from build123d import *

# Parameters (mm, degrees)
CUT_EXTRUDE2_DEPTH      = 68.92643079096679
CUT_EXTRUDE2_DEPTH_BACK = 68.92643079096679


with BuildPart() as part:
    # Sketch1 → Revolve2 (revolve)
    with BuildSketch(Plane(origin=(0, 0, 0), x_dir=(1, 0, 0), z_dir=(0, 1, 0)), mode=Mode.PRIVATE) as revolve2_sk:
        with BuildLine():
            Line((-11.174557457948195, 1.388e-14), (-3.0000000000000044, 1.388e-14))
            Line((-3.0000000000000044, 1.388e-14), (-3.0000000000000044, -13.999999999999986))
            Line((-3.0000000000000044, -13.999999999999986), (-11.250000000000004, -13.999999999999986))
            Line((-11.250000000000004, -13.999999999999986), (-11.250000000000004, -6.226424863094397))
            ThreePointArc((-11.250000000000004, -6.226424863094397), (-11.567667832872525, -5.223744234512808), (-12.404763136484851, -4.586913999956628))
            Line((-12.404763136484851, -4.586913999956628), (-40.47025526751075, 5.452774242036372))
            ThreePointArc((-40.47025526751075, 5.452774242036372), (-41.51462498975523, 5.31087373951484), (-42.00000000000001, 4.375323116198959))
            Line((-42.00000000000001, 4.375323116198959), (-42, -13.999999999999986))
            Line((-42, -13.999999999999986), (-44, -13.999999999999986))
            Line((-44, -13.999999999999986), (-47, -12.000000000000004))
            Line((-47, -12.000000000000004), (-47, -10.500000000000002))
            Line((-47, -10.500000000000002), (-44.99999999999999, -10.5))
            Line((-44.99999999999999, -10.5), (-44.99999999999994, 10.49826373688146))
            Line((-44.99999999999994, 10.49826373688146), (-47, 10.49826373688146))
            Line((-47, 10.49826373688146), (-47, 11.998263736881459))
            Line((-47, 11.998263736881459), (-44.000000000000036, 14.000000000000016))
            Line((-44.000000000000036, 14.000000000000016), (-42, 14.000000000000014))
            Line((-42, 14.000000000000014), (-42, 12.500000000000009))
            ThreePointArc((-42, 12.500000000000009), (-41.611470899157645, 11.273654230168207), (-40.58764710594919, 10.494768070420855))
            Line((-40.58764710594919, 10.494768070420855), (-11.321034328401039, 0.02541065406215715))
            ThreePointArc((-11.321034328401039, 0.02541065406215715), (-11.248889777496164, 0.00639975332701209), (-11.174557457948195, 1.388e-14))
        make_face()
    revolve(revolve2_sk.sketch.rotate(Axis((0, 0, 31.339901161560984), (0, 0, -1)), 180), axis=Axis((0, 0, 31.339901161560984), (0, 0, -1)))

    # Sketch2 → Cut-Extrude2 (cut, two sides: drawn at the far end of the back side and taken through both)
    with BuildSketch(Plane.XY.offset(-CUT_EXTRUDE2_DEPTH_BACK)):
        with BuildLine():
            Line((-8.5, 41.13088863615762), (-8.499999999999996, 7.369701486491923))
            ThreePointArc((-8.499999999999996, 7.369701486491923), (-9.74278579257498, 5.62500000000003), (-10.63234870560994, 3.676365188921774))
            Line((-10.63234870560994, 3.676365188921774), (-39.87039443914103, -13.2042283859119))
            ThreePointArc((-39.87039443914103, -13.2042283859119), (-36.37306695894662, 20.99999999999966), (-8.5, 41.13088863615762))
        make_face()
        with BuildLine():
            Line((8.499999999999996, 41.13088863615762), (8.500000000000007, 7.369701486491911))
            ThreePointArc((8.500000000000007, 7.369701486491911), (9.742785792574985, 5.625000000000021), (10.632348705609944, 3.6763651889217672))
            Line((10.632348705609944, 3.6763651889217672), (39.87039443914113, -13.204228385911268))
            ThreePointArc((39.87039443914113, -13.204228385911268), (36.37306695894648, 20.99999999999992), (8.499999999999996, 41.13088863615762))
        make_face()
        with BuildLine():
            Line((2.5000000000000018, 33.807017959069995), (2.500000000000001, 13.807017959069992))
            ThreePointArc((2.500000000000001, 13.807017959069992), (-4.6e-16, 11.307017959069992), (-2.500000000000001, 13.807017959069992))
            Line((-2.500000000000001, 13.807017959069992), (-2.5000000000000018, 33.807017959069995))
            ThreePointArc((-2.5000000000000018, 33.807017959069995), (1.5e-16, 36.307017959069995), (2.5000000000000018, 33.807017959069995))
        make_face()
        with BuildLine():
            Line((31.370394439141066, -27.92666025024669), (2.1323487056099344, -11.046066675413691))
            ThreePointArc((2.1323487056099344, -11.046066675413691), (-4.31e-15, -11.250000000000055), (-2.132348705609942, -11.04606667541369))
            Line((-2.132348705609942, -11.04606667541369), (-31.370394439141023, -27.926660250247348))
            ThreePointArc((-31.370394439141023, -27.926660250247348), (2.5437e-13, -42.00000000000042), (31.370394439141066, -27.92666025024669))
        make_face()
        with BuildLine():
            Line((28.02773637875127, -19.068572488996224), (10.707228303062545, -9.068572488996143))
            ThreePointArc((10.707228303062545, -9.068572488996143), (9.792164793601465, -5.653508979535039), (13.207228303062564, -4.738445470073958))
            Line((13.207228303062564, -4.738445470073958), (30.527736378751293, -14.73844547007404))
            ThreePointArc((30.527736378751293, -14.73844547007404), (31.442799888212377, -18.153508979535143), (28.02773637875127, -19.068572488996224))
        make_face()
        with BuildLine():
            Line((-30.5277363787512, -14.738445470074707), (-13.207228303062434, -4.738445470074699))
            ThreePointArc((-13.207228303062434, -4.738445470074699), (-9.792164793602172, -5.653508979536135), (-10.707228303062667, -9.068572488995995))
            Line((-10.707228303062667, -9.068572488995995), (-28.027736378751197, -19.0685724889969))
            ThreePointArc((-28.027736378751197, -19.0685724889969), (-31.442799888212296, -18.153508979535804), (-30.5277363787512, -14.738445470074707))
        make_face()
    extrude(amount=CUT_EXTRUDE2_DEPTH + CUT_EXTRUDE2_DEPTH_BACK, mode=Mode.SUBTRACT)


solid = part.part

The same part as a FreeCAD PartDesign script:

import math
import FreeCAD as App
import Part
import Sketcher

V = App.Vector
Q = App.Units.Quantity

doc = App.newDocument("Part")
body = doc.addObject("PartDesign::Body", "Body")

sketch1 = doc.addObject("Sketcher::SketchObject", "Sketch")
body.addObject(sketch1)
sketch1.AttachmentSupport = (doc.XZ_Plane, [""])
sketch1.MapMode = "FlatFace"
sketch1.addGeometry([
    Part.LineSegment(V(-3, 0, 0), V(-11.174557, 0, 0)),
    Part.ArcOfCircle(Part.Circle(V(-11.174557, -0.43488, 0), V(0, 0, 1), 0.43488), math.radians(90), math.radians(109.683328)),
    Part.LineSegment(V(-11.321034, -0.025411, 0), V(-40.587647, -10.494768, 0)),
    Part.ArcOfCircle(Part.Circle(V(-39.870328, -12.5, 0), V(0, 0, 1), 2.129672), math.radians(109.683328), math.radians(180)),
    Part.LineSegment(V(-42, -12.5, 0), V(-42, -14, 0)),
    Part.LineSegment(V(-42, -14, 0), V(-44, -14, 0)),
    Part.LineSegment(V(-44, -14, 0), V(-47, -11.998264, 0)),
    Part.LineSegment(V(-47, -11.998264, 0), V(-47, -10.498264, 0)),
    Part.LineSegment(V(-47, -10.498264, 0), V(-45, -10.498264, 0)),
    Part.LineSegment(V(-45, -10.498264, 0), V(-45, 10.5, 0)),
    Part.LineSegment(V(-45, 10.5, 0), V(-47, 10.5, 0)),
    Part.LineSegment(V(-47, 10.5, 0), V(-47, 12, 0)),
    Part.LineSegment(V(-47, 12, 0), V(-44, 14, 0)),
    Part.LineSegment(V(-44, 14, 0), V(-42, 14, 0)),
    Part.LineSegment(V(-42, 14, 0), V(-42, -4.375323, 0)),
    Part.ArcOfCircle(Part.Circle(V(-40.855685, -4.375323, 0), V(0, 0, 1), 1.144315), math.radians(180), math.radians(289.683328)),
    Part.LineSegment(V(-40.470255, -5.452774, 0), V(-12.404763, 4.586914, 0)),
    Part.ArcOfCircle(Part.Circle(V(-12.991255, 6.226425, 0), V(0, 0, 1), 1.741255), math.radians(-70.316672), math.radians(0)),
    Part.LineSegment(V(-11.25, 6.226425, 0), V(-11.25, 14, 0)),
    Part.LineSegment(V(-11.25, 14, 0), V(-3, 14, 0)),
    Part.LineSegment(V(-3, 14, 0), V(-3, 0, 0)),
], False)
sketch1.addConstraint([
    Sketcher.Constraint("Tangent", 0, 2, 1, 1),
    Sketcher.Constraint("Tangent", 1, 2, 2, 1),
    Sketcher.Constraint("Tangent", 2, 2, 3, 1),
    Sketcher.Constraint("Tangent", 3, 2, 4, 1),
    Sketcher.Constraint("Coincident", 4, 2, 5, 1),
    Sketcher.Constraint("Coincident", 5, 2, 6, 1),
    Sketcher.Constraint("Coincident", 6, 2, 7, 1),
    Sketcher.Constraint("Coincident", 7, 2, 8, 1),
    Sketcher.Constraint("Coincident", 8, 2, 9, 1),
    Sketcher.Constraint("Coincident", 9, 2, 10, 1),
    Sketcher.Constraint("Coincident", 10, 2, 11, 1),
    Sketcher.Constraint("Coincident", 11, 2, 12, 1),
    Sketcher.Constraint("Coincident", 12, 2, 13, 1),
    Sketcher.Constraint("Coincident", 13, 2, 14, 1),
    Sketcher.Constraint("Tangent", 14, 2, 15, 1),
    Sketcher.Constraint("Tangent", 15, 2, 16, 1),
    Sketcher.Constraint("Tangent", 16, 2, 17, 1),
    Sketcher.Constraint("Tangent", 17, 2, 18, 1),
    Sketcher.Constraint("Coincident", 18, 2, 19, 1),
    Sketcher.Constraint("Coincident", 19, 2, 20, 1),
    Sketcher.Constraint("Coincident", 20, 2, 0, 1),
    Sketcher.Constraint("Horizontal", 0),
    Sketcher.Constraint("Vertical", 4),
    Sketcher.Constraint("Horizontal", 5),
    Sketcher.Constraint("Vertical", 7),
    Sketcher.Constraint("Horizontal", 8),
    Sketcher.Constraint("Vertical", 9),
    Sketcher.Constraint("Horizontal", 10),
    Sketcher.Constraint("Vertical", 11),
    Sketcher.Constraint("Horizontal", 13),
    Sketcher.Constraint("Vertical", 14),
    Sketcher.Constraint("Vertical", 18),
    Sketcher.Constraint("Horizontal", 19),
    Sketcher.Constraint("Vertical", 20),
    Sketcher.Constraint("Symmetric", 5, 2, 12, 2, -1),
    Sketcher.Constraint("PointOnObject", 0, 2, -1),
    Sketcher.Constraint("Parallel", 2, 16),
    Sketcher.Constraint("Horizontal", 13, 2, 18, 2),
    Sketcher.Constraint("Vertical", 7, 2, 10, 2),
    Sketcher.Constraint("Vertical", 4, 2, 13, 2),
    Sketcher.Constraint("Equal", 5, 8),
    Sketcher.Constraint("Equal", 4, 7),
    Sketcher.Constraint("Equal", 7, 11),
    Sketcher.Constraint("DistanceX", 5, 2, 5, 1, 2.0),
    Sketcher.Constraint("DistanceY", 20, 2, 20, 1, 14.0),
    Sketcher.Constraint("DistanceY", 4, 2, 4, 1, 1.5),
    Sketcher.Constraint("DistanceX", 3, 2, -1, 1, 42.0),
    Sketcher.Constraint("DistanceX", 6, 2, -1, 1, 47.0),
    Sketcher.Constraint("DistanceY", -1, 1, 11, 2, 12.0),
    Sketcher.Constraint("DistanceX", 19, 2, -1, 1, 3.0),
    Sketcher.Constraint("DistanceX", 19, 1, 19, 2, 8.25),
    Sketcher.Constraint("Radius", 1, 0.43488),
    Sketcher.Constraint("Radius", 3, 2.129672),
    Sketcher.Constraint("Radius", 15, 1.144315),
    Sketcher.Constraint("Radius", 17, 1.741255),
    Sketcher.Constraint("DistanceX", 0, 2, 0, 1, 8.174557),
    Sketcher.Constraint("DistanceY", 9, 1, 9, 2, 20.998264),
    Sketcher.Constraint("DistanceY", 14, 2, 14, 1, 18.375323),
])
revolution = doc.addObject("PartDesign::Revolution", "Revolution")
body.addObject(revolution)
revolution.Profile = sketch1
revolution.ReferenceAxis = (sketch1, ["V_Axis"])
revolution.Angle = 360

sketch2 = doc.addObject("Sketcher::SketchObject", "Sketch001")
body.addObject(sketch2)
sketch2.AttachmentSupport = (doc.XY_Plane, [""])
sketch2.MapMode = "FlatFace"
sketch2.addGeometry([
    Part.LineSegment(V(-8.5, 7.369701, 0), V(-8.5, 41.130889, 0)),
    Part.ArcOfCircle(Part.Circle(V(0, 0, 0), V(0, 0, 1), 42), math.radians(101.676225), math.radians(198.323775)),
    Part.LineSegment(V(-39.870394, -13.204228, 0), V(-10.632349, 3.676365, 0)),
    Part.ArcOfCircle(Part.Circle(V(0, 0, 0), V(0, 0, 1), 11.25), math.radians(139.073937), math.radians(160.926063)),
    Part.LineSegment(V(8.5, 41.130889, 0), V(8.5, 7.369701, 0)),
    Part.ArcOfCircle(Part.Circle(V(0, 0, 0), V(0, 0, 1), 11.25), math.radians(19.073937), math.radians(40.926063)),
    Part.LineSegment(V(10.632349, 3.676365, 0), V(39.870394, -13.204228, 0)),
    Part.ArcOfCircle(Part.Circle(V(0, 0, 0), V(0, 0, 1), 42), math.radians(-18.323775), math.radians(78.323775)),
    Part.LineSegment(V(2.5, 13.807018, 0), V(2.5, 33.807018, 0)),
    Part.ArcOfCircle(Part.Circle(V(0, 33.807018, 0), V(0, 0, 1), 2.5), math.radians(0), math.radians(180)),
    Part.LineSegment(V(-2.5, 33.807018, 0), V(-2.5, 13.807018, 0)),
    Part.ArcOfCircle(Part.Circle(V(0, 13.807018, 0), V(0, 0, 1), 2.5), math.radians(180), math.radians(360)),
    Part.LineSegment(V(31.370394, -27.92666, 0), V(2.132349, -11.046067, 0)),
    Part.ArcOfCircle(Part.Circle(V(0, 0, 0), V(0, 0, 1), 11.25), math.radians(-100.926063), math.radians(-79.073937)),
    Part.LineSegment(V(-2.132349, -11.046067, 0), V(-31.370394, -27.92666, 0)),
    Part.ArcOfCircle(Part.Circle(V(0, 0, 0), V(0, 0, 1), 42), math.radians(-138.323775), math.radians(-41.676225)),
    Part.LineSegment(V(10.707228, -9.068572, 0), V(28.027736, -19.068572, 0)),
    Part.ArcOfCircle(Part.Circle(V(29.277736, -16.903509, 0), V(0, 0, 1), 2.5), math.radians(-120), math.radians(60)),
    Part.LineSegment(V(30.527736, -14.738445, 0), V(13.207228, -4.738445, 0)),
    Part.ArcOfCircle(Part.Circle(V(11.957228, -6.903509, 0), V(0, 0, 1), 2.5), math.radians(60), math.radians(240)),
    Part.LineSegment(V(-13.207228, -4.738445, 0), V(-30.527736, -14.738445, 0)),
    Part.ArcOfCircle(Part.Circle(V(-29.277736, -16.903509, 0), V(0, 0, 1), 2.5), math.radians(120), math.radians(300)),
    Part.LineSegment(V(-28.027736, -19.068572, 0), V(-10.707228, -9.068572, 0)),
    Part.ArcOfCircle(Part.Circle(V(-11.957228, -6.903509, 0), V(0, 0, 1), 2.5), math.radians(-60), math.radians(120)),
], False)
sketch2.addConstraint([
    Sketcher.Constraint("Coincident", 0, 2, 1, 1),
    Sketcher.Constraint("Coincident", 1, 2, 2, 1),
    Sketcher.Constraint("Coincident", 2, 2, 3, 2),
    Sketcher.Constraint("Coincident", 3, 1, 0, 1),
    Sketcher.Constraint("Coincident", 4, 2, 5, 2),
    Sketcher.Constraint("Coincident", 5, 1, 6, 1),
    Sketcher.Constraint("Coincident", 6, 2, 7, 1),
    Sketcher.Constraint("Coincident", 7, 2, 4, 1),
    Sketcher.Constraint("Tangent", 8, 2, 9, 1),
    Sketcher.Constraint("Tangent", 9, 2, 10, 1),
    Sketcher.Constraint("Tangent", 10, 2, 11, 1),
    Sketcher.Constraint("Tangent", 11, 2, 8, 1),
    Sketcher.Constraint("Coincident", 12, 2, 13, 2),
    Sketcher.Constraint("Coincident", 13, 1, 14, 1),
    Sketcher.Constraint("Coincident", 14, 2, 15, 1),
    Sketcher.Constraint("Coincident", 15, 2, 12, 1),
    Sketcher.Constraint("Tangent", 16, 2, 17, 1),
    Sketcher.Constraint("Tangent", 17, 2, 18, 1),
    Sketcher.Constraint("Tangent", 18, 2, 19, 1),
    Sketcher.Constraint("Tangent", 19, 2, 16, 1),
    Sketcher.Constraint("Tangent", 20, 2, 21, 1),
    Sketcher.Constraint("Tangent", 21, 2, 22, 1),
    Sketcher.Constraint("Tangent", 22, 2, 23, 1),
    Sketcher.Constraint("Tangent", 23, 2, 20, 1),
    Sketcher.Constraint("Vertical", 0),
    Sketcher.Constraint("Vertical", 4),
    Sketcher.Constraint("Vertical", 8),
    Sketcher.Constraint("Vertical", 10),
    Sketcher.Constraint("Coincident", 1, 3, -1, 1),
    Sketcher.Constraint("Coincident", 3, 3, -1, 1),
    Sketcher.Constraint("Coincident", 5, 3, -1, 1),
    Sketcher.Constraint("Coincident", 7, 3, -1, 1),
    Sketcher.Constraint("Coincident", 13, 3, -1, 1),
    Sketcher.Constraint("Coincident", 15, 3, -1, 1),
    Sketcher.Constraint("Equal", 3, 5),
    Sketcher.Constraint("Equal", 1, 7),
    Sketcher.Constraint("Equal", 5, 13),
    Sketcher.Constraint("Equal", 7, 15),
    Sketcher.Constraint("Equal", 11, 17),
    Sketcher.Constraint("Equal", 17, 19),
    Sketcher.Constraint("Equal", 19, 21),
    Sketcher.Constraint("Equal", 21, 23),
    Sketcher.Constraint("Symmetric", 17, 3, 21, 3, -2),
    Sketcher.Constraint("Symmetric", 19, 3, 23, 3, -2),
    Sketcher.Constraint("PointOnObject", 9, 3, -2),
    Sketcher.Constraint("Parallel", 6, 12),
    Sketcher.Constraint("Parallel", 2, 14),
    Sketcher.Constraint("Parallel", 12, 16),
    Sketcher.Constraint("Parallel", 14, 20),
    Sketcher.Constraint("Horizontal", 3, 1, 4, 2),
    Sketcher.Constraint("Horizontal", 2, 2, 5, 1),
    Sketcher.Constraint("Horizontal", 12, 2, 13, 1),
    Sketcher.Constraint("Equal", 6, 12),
    Sketcher.Constraint("Radius", 1, 42.0),
    Sketcher.Constraint("Radius", 9, 2.5),
    Sketcher.Constraint("DistanceY", 8, 1, 8, 2, 20.0),
    Sketcher.Constraint("Angle", 2, Q("30 deg")),
    Sketcher.Constraint("Radius", 3, 11.25),
    Sketcher.Constraint("Distance", 16, 20.0),
    Sketcher.Constraint("DistanceX", 0, 2, 7, 2, 17.0),
    Sketcher.Constraint("DistanceX", 1, 2, 14, 2, 8.5),
    Sketcher.Constraint("DistanceY", 17, 3, -1, 1, 16.903509),
    Sketcher.Constraint("DistanceX", -1, 1, 19, 3, 11.957228),
    Sketcher.Constraint("DistanceY", 9, 3, 0, 2, 7.323871),
])
pocket1 = doc.addObject("PartDesign::Pocket", "Pocket")
body.addObject(pocket1)
pocket1.Profile = sketch2
pocket1.Type = "ThroughAll"
pocket1.Midplane = True

doc.recompute()
